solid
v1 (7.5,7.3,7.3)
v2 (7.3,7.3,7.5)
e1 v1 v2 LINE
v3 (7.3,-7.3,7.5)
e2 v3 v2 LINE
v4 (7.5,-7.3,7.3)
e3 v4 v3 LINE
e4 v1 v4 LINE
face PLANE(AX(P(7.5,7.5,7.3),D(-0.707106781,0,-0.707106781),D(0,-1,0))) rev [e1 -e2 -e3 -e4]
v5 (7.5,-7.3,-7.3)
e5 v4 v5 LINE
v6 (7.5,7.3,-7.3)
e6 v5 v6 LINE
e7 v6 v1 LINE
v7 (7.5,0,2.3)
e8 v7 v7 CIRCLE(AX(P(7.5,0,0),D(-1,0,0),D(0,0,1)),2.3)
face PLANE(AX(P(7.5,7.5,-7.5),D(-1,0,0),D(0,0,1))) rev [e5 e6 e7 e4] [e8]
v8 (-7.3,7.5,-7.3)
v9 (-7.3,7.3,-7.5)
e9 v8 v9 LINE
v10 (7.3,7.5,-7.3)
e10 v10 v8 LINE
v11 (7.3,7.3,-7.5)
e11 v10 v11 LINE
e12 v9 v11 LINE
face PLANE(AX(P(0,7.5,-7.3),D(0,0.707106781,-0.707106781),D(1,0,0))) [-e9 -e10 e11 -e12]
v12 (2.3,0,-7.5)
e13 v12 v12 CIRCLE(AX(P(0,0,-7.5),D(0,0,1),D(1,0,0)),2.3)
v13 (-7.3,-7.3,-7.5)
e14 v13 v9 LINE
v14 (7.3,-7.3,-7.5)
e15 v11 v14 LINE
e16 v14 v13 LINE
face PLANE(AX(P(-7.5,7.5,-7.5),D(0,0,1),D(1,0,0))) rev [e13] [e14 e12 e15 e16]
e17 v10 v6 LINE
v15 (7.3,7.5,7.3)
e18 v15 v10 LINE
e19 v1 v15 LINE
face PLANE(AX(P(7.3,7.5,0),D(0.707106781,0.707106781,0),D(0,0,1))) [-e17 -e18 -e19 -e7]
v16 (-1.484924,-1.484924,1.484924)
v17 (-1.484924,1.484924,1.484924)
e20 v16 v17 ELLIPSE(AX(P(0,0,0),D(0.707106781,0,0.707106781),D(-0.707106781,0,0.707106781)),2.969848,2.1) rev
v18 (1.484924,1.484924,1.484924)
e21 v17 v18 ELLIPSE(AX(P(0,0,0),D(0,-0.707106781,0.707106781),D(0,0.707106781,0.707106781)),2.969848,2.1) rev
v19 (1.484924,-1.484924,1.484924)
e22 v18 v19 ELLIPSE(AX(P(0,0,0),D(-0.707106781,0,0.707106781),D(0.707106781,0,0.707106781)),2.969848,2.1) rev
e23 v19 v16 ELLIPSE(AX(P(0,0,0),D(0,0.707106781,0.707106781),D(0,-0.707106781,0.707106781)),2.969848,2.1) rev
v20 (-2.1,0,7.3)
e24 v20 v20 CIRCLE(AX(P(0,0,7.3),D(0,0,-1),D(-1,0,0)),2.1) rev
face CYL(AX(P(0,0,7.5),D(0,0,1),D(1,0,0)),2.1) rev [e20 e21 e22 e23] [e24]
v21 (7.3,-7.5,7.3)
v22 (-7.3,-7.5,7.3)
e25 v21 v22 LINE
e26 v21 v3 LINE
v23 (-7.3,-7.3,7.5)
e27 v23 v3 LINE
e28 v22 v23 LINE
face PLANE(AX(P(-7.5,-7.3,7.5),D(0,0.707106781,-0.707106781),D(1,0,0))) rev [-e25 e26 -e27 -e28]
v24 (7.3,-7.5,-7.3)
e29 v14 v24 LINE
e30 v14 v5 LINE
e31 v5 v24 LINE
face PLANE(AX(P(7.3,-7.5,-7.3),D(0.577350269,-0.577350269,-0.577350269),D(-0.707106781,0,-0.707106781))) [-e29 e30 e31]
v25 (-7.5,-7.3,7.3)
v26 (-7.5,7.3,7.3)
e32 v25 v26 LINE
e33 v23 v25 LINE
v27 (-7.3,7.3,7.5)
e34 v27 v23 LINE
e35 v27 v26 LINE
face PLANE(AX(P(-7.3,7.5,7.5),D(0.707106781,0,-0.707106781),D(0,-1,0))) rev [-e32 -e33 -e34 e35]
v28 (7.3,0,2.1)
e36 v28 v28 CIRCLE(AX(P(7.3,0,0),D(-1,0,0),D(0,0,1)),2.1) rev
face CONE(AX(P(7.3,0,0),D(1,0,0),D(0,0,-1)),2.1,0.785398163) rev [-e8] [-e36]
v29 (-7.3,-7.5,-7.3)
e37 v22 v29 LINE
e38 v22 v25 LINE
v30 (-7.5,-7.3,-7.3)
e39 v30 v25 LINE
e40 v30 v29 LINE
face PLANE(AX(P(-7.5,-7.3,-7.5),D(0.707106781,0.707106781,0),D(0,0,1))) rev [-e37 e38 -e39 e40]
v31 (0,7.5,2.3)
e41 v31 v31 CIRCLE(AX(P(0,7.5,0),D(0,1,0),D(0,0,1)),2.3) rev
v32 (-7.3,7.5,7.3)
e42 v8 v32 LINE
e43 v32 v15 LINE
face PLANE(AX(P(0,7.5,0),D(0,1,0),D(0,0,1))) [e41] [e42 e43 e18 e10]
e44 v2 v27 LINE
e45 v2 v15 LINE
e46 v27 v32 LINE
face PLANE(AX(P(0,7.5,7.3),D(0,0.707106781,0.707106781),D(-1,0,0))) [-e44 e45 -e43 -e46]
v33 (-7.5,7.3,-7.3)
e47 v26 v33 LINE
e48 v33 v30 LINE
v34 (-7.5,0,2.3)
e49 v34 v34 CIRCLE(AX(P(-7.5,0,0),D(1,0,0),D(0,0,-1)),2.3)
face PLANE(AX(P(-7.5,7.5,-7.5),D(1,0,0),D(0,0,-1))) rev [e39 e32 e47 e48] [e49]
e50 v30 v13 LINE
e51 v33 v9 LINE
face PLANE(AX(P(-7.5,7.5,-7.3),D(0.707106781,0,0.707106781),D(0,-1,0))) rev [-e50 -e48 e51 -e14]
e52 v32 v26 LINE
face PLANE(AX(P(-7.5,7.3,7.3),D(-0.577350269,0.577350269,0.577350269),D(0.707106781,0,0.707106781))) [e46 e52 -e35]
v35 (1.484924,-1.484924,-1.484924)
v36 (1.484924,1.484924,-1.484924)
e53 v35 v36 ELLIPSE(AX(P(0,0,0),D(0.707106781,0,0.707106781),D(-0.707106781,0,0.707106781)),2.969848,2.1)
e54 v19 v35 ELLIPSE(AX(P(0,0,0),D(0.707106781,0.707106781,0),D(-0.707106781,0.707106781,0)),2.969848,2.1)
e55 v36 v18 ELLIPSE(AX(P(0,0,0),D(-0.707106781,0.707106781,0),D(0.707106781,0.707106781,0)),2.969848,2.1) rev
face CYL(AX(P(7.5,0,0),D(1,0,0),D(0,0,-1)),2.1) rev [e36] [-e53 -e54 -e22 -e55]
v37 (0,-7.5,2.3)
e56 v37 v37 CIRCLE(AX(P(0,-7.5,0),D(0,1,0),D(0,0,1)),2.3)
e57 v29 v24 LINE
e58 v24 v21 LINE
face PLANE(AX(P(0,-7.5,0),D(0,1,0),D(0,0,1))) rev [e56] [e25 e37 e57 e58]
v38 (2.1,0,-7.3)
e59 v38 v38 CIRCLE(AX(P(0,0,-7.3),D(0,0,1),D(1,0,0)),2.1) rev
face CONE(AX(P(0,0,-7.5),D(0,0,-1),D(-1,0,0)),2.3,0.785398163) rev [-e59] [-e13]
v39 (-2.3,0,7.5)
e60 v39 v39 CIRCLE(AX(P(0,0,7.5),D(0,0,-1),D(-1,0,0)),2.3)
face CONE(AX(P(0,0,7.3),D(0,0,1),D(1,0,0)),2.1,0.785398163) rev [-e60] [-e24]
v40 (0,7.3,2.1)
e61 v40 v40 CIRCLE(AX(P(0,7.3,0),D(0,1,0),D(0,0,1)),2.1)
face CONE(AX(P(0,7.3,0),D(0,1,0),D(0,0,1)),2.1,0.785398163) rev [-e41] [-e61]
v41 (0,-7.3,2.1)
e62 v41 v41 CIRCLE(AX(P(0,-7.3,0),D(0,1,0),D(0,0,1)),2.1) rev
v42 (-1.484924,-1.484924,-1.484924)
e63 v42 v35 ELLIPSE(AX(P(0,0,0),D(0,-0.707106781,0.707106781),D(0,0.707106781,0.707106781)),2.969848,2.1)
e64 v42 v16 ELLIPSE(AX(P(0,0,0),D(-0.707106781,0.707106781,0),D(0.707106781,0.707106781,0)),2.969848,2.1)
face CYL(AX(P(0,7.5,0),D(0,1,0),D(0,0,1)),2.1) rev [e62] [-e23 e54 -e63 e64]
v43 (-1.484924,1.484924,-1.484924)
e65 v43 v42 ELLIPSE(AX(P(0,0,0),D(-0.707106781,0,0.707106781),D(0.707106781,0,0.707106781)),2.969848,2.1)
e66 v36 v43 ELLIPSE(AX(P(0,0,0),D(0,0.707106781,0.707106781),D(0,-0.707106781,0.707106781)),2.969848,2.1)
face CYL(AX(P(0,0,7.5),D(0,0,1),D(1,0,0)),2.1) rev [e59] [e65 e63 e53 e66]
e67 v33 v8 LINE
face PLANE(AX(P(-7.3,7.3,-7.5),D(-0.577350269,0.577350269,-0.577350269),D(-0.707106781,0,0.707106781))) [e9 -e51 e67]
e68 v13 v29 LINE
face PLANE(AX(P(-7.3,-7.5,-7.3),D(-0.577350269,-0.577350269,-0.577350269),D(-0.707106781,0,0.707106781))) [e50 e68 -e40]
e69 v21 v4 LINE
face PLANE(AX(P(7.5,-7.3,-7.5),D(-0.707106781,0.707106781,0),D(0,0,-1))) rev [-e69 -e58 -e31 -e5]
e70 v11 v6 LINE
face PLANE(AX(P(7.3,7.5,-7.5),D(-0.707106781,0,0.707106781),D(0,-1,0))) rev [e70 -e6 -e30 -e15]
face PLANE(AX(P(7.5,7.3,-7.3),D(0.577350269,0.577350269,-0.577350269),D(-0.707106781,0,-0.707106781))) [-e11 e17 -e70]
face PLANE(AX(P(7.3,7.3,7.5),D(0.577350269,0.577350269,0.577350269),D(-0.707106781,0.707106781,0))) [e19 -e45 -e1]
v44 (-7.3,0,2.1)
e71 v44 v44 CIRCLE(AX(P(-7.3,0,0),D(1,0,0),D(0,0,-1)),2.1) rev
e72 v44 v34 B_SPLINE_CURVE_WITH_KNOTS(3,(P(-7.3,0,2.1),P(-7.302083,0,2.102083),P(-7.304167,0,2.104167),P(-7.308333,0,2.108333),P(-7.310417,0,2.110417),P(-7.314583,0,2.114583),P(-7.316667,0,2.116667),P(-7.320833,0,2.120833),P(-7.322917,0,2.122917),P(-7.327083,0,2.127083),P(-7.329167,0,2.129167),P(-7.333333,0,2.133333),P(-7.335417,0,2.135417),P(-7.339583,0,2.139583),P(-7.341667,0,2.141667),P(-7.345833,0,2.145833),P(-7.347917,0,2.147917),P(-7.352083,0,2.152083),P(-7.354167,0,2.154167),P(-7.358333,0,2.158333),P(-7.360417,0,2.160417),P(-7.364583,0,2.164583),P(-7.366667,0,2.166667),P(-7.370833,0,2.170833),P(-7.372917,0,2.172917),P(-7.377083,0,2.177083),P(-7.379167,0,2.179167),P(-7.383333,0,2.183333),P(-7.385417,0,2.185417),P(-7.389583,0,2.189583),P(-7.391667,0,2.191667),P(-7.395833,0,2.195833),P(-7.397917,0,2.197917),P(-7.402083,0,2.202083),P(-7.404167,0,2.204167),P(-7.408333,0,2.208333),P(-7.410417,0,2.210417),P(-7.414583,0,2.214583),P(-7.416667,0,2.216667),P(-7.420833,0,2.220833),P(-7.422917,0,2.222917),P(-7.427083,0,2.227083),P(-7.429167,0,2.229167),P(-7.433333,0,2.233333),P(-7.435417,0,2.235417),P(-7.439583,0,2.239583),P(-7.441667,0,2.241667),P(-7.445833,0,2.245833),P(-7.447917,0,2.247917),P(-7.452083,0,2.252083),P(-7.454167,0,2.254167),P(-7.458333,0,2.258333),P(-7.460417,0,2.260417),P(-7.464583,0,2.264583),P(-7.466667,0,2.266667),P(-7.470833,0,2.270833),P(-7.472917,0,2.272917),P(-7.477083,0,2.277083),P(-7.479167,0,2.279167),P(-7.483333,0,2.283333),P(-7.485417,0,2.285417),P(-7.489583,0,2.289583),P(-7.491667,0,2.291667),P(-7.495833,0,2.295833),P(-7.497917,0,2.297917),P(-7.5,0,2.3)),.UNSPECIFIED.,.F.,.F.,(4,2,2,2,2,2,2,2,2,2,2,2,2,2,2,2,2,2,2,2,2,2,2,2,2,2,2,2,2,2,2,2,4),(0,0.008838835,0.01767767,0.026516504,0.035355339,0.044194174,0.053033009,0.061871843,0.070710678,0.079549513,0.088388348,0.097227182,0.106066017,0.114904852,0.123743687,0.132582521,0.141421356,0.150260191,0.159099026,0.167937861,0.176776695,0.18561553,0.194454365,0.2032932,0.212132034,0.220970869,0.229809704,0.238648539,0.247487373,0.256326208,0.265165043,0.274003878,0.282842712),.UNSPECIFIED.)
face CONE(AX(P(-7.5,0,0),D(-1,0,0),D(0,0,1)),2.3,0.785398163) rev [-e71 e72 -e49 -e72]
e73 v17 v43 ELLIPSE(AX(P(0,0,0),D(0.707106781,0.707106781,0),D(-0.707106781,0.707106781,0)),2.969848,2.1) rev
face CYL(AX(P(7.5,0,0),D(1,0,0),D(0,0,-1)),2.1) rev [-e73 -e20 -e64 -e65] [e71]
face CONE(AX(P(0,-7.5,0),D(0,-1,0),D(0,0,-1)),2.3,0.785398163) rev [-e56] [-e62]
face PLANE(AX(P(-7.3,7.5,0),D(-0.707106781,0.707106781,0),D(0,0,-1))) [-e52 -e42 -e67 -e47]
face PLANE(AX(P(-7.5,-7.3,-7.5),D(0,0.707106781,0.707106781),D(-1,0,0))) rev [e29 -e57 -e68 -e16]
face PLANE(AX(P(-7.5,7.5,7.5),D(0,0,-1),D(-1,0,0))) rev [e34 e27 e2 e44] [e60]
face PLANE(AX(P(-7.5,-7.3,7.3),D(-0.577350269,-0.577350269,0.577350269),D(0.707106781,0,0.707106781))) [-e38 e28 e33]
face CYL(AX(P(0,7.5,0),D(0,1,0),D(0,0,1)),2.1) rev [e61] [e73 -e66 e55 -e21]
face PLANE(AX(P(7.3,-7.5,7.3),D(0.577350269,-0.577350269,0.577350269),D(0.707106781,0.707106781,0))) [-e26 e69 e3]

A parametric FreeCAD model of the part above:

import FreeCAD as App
import Part
import Sketcher

V = App.Vector


def edges_at(feature, points):
    """Names of the edges that pass closest to the given points."""
    edges = feature.Shape.Edges
    near = lambda p: min(range(len(edges)), key=lambda i: edges[i].distToShape(Part.Vertex(*p))[0])
    return sorted({f"Edge{near(p) + 1}" for p in points})

doc = App.newDocument("Part")
body = doc.addObject("PartDesign::Body", "Body")

# Sketch on XZ plane
sketch1 = body.newObject("Sketcher::SketchObject", "Sketch")
sketch1.AttachmentSupport = (doc.getObject("XZ_Plane"), [""])
sketch1.MapMode = "FlatFace"
sketch1.addGeometry([
    Part.LineSegment(V(-8, -8, 0), V(-8, 8, 0)),
    Part.LineSegment(V(-8, 8, 0), V(8, 8, 0)),
    Part.LineSegment(V(8, 8, 0), V(8, -8, 0)),
    Part.LineSegment(V(8, -8, 0), V(-8, -8, 0)),
], False)
sketch1.addConstraint([
    Sketcher.Constraint("Coincident", 0, 2, 1, 1),
    Sketcher.Constraint("Coincident", 1, 2, 2, 1),
    Sketcher.Constraint("Coincident", 2, 2, 3, 1),
    Sketcher.Constraint("Coincident", 3, 2, 0, 1),
    Sketcher.Constraint("Vertical", 0),
    Sketcher.Constraint("Horizontal", 1),
    Sketcher.Constraint("Vertical", 2),
    Sketcher.Constraint("Horizontal", 3),
    Sketcher.Constraint("Symmetric", 0, 2, 2, 2, -1, 1),
    Sketcher.Constraint("Equal", 3, 0),
    Sketcher.Constraint("DistanceX", 1, 1, 1, 2, 15.0),
])
pad1 = body.newObject("PartDesign::Pad", "Pad")
pad1.Profile = sketch1
pad1.Length = 15
pad1.Midplane = True

# Sketch on XY plane
sketch2 = body.newObject("Sketcher::SketchObject", "Sketch001")
sketch2.AttachmentSupport = (doc.getObject("XY_Plane"), [""])
sketch2.MapMode = "FlatFace"
sketch2.AttachmentOffset = App.Placement(V(0, 0, 7.5), App.Rotation())
sketch2.addGeometry(Part.Circle(V(0, 0, 0), V(0, 0, 1), 2.1), False)
sketch2.addConstraint([
    Sketcher.Constraint("Coincident", 0, 3, -1, 1),
    Sketcher.Constraint("Diameter", 0, 4.2),
])
doc.recompute()
hole = body.newObject("PartDesign::Hole", "Hole")
hole.Profile = sketch2
hole.ThreadType = "None"
hole.Diameter = 4.2
hole.DepthType = "ThroughAll"

# Sketch on XZ plane
sketch3 = body.newObject("Sketcher::SketchObject", "Sketch002")
sketch3.AttachmentSupport = (doc.getObject("XZ_Plane"), [""])
sketch3.MapMode = "FlatFace"
sketch3.AttachmentOffset = App.Placement(V(0, 0, -7.5), App.Rotation())
sketch3.addGeometry(Part.Circle(V(0, 0, 0), V(0, 0, 1), 2.1), False)
sketch3.addConstraint([
    Sketcher.Constraint("Coincident", 0, 3, -1, 1),
    Sketcher.Constraint("Diameter", 0, 4.2),
])
doc.recompute()
hole2 = body.newObject("PartDesign::Hole", "Hole001")
hole2.Profile = sketch3
hole2.ThreadType = "None"
hole2.Diameter = 4.2
hole2.DepthType = "ThroughAll"
hole2.Reversed = True

# Sketch on YZ plane
sketch4 = body.newObject("Sketcher::SketchObject", "Sketch003")
sketch4.AttachmentSupport = (doc.getObject("YZ_Plane"), [""])
sketch4.MapMode = "FlatFace"
sketch4.AttachmentOffset = App.Placement(V(0, 0, 7.5), App.Rotation())
sketch4.addGeometry(Part.Circle(V(0, 0, 0), V(0, 0, 1), 2.1), False)
sketch4.addConstraint([
    Sketcher.Constraint("Coincident", 0, 3, -1, 1),
    Sketcher.Constraint("Diameter", 0, 4.2),
])
doc.recompute()
hole3 = body.newObject("PartDesign::Hole", "Hole002")
hole3.Profile = sketch4
hole3.ThreadType = "None"
hole3.Diameter = 4.2
hole3.DepthType = "ThroughAll"
doc.recompute()

chamfer = body.newObject("PartDesign::Chamfer", "Chamfer")
chamfer.Base = (hole3, edges_at(hole3, [
    (-7.5, 7.5, 0),
    (2.1, 0, 7.5),
    (2.1, 0, -7.5),
    (0, 7.5, 7.5),
    (2.1, -7.5, 0),
    (2.1, 7.5, 0),
    (-7.5, 0, -2.1),
    (7.5, 0, -2.1),
    (7.5, 7.5, 0),
    (0, -7.5, 7.5),
    (-7.5, -7.5, 0),
    (0, -7.5, -7.5),
    (7.5, -7.5, 0),
    (7.5, 0, 7.5),
    (-7.5, 0, 7.5),
    (-7.5, 0, -7.5),
    (7.5, 0, -7.5),
    (0, 7.5, -7.5),
]))
chamfer.Size = 0.2

doc.recompute()
